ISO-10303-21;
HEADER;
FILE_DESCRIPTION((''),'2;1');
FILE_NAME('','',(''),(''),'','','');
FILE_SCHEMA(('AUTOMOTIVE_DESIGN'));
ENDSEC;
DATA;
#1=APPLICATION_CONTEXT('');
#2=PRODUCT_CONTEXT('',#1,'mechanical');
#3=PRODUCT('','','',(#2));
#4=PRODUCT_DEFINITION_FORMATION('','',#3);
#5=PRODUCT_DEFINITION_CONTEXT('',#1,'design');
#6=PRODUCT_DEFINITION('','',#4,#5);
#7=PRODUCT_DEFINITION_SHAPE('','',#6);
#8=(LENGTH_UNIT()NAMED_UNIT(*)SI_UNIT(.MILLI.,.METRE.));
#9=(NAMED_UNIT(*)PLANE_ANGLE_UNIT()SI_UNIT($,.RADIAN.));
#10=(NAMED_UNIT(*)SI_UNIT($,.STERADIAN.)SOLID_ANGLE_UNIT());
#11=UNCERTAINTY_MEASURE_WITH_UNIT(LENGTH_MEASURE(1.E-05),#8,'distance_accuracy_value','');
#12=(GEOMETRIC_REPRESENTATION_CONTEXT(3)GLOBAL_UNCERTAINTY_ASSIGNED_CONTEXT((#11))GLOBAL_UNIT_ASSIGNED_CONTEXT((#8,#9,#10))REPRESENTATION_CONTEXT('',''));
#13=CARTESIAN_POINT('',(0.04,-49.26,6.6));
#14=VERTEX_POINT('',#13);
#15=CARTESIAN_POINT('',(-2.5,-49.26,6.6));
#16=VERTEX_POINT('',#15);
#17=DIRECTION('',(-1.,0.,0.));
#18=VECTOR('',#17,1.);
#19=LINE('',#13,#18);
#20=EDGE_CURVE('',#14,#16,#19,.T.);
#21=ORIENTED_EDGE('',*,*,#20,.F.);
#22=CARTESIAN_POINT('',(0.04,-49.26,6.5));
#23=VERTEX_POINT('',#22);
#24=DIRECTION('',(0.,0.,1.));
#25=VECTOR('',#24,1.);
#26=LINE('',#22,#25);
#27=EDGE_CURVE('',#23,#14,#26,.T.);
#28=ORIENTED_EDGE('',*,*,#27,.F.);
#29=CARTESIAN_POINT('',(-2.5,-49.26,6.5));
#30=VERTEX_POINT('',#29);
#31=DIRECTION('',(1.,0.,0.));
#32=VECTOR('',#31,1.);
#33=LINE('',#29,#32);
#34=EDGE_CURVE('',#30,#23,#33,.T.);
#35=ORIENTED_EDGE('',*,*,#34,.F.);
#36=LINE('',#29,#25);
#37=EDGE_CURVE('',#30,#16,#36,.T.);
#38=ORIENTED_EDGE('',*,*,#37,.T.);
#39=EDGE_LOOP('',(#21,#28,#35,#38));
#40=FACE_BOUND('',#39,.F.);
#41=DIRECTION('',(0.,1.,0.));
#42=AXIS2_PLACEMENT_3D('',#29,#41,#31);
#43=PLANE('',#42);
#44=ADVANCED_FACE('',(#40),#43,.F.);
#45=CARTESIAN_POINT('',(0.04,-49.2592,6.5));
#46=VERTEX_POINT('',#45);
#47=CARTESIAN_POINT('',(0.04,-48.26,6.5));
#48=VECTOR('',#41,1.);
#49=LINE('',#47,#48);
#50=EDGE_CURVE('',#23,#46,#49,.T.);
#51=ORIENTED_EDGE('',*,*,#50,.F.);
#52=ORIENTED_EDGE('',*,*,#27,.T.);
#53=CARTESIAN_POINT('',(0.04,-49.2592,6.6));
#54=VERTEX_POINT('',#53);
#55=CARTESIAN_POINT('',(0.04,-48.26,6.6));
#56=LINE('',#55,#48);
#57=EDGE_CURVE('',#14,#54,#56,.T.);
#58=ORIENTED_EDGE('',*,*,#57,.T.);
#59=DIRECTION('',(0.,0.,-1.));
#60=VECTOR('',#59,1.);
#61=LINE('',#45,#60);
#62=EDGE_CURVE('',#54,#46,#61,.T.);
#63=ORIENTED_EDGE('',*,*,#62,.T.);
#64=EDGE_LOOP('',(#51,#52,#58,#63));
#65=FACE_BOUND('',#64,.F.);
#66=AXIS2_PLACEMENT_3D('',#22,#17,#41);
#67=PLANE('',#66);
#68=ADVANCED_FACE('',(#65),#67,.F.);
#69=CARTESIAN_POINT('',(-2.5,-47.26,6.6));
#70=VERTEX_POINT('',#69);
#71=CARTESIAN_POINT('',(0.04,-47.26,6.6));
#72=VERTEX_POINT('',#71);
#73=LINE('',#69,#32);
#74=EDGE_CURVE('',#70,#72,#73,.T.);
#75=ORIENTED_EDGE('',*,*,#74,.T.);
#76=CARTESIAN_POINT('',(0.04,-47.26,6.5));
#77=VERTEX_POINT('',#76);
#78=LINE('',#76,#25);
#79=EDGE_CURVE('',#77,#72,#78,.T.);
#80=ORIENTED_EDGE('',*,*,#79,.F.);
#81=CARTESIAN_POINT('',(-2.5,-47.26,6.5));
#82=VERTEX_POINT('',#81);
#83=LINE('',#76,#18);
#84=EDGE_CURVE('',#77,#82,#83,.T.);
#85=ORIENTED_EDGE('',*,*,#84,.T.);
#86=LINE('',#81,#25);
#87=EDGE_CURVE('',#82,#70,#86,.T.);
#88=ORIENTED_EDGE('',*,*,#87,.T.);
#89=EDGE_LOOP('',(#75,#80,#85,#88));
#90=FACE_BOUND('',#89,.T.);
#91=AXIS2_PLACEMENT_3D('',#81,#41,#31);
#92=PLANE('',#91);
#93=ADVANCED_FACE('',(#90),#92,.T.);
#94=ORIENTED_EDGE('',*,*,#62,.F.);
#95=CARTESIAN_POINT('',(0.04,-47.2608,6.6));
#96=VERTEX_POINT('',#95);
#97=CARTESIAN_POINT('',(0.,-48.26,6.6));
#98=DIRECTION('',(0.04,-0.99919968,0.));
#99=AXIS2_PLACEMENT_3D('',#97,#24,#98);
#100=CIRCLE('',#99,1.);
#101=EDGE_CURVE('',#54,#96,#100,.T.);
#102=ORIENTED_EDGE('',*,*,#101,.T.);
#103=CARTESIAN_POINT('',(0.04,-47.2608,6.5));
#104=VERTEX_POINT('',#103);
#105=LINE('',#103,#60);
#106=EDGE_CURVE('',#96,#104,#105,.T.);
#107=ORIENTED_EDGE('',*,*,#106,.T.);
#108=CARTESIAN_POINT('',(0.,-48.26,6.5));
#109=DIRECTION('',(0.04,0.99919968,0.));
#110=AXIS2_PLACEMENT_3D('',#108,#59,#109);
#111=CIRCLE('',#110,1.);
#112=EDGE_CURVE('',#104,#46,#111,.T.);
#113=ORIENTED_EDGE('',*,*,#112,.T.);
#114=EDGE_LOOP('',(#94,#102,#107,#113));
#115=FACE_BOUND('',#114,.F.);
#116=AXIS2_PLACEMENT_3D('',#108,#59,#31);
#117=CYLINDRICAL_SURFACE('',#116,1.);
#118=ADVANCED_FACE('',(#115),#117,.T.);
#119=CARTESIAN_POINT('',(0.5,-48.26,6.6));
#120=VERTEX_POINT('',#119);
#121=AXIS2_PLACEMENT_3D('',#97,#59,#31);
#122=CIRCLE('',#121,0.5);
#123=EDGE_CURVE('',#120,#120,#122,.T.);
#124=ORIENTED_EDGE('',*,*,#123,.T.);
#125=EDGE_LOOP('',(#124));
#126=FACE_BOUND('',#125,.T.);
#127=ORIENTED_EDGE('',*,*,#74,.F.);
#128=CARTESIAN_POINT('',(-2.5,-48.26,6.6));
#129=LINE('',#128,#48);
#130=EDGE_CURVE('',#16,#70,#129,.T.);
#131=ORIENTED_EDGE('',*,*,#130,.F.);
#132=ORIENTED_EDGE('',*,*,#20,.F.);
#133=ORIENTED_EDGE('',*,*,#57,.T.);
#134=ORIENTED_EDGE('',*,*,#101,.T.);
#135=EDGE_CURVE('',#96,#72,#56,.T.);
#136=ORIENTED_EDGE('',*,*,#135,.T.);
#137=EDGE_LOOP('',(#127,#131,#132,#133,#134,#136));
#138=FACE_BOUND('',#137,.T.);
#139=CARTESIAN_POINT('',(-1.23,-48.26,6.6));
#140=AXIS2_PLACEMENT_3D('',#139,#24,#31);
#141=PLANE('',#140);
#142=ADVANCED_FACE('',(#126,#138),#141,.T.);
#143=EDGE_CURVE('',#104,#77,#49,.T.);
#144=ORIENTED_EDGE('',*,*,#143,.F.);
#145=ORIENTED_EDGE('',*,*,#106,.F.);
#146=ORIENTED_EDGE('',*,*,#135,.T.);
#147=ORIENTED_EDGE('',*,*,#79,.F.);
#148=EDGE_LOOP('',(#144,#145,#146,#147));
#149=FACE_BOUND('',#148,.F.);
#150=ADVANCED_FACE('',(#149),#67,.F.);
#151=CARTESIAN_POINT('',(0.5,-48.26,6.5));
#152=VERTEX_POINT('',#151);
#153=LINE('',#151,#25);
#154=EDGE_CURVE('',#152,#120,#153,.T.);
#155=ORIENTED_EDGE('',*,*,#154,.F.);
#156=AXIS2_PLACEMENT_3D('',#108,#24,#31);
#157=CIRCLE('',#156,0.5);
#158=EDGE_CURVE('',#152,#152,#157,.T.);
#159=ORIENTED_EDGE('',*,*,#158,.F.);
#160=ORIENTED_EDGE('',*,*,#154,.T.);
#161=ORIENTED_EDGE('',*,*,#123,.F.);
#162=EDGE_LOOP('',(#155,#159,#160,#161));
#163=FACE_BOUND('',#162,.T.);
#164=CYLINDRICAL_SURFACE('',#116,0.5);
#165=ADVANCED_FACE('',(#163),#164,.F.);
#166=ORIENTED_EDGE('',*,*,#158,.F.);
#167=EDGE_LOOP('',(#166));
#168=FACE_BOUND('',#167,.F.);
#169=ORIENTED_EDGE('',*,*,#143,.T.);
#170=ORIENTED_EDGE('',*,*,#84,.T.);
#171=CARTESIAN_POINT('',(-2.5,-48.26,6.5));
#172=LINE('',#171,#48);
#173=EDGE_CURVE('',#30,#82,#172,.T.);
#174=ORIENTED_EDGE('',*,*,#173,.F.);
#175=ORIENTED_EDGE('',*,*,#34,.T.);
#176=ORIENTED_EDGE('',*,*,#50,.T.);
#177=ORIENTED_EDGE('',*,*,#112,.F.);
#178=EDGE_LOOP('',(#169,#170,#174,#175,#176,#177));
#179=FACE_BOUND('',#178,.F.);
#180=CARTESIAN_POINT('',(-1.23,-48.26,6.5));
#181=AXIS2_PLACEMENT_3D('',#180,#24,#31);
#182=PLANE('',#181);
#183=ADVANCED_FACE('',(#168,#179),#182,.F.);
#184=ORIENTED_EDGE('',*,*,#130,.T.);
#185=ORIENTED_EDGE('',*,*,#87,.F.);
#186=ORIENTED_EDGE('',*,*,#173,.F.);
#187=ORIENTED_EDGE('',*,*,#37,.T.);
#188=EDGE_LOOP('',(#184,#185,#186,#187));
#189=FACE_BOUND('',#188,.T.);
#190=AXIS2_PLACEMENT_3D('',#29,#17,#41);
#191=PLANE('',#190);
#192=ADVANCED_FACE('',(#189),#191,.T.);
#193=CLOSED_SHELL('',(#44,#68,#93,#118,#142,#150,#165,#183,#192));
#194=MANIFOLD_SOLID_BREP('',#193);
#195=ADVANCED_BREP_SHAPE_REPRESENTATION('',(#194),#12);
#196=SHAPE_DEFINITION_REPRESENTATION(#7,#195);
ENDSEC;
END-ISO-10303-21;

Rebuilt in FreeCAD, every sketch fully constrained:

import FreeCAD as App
import Part
import Sketcher


def add_polygon(sketch, points):
    """Adds a closed chain of lines whose ends are joined by coincident constraints."""
    first, n = sketch.GeometryCount, len(points)
    for a, b in zip(points, points[1:] + points[:1]):
        sketch.addGeometry(Part.LineSegment(App.Vector(*a, 0), App.Vector(*b, 0)), False)
    for i in range(n):
        sketch.addConstraint(Sketcher.Constraint("Coincident", first + i, 2, first + (i + 1) % n, 1))

doc = App.newDocument("Part")
body = doc.addObject("PartDesign::Body", "Body")

# Sketch on XY plane
sketch1 = body.newObject("Sketcher::SketchObject", "Sketch")
sketch1.AttachmentSupport = (doc.getObject("XY_Plane"), [""])
sketch1.MapMode = "FlatFace"
sketch1.AttachmentOffset = App.Placement(App.Vector(0, 0, 1), App.Rotation())
sketch1.addGeometry(Part.Circle(App.Vector(0, 0, 0), App.Vector(0, 0, 1), 0.5), False)
sketch1.addConstraint(Sketcher.Constraint("Coincident", 0, 3, -1, 1))
sketch1.addConstraint(Sketcher.Constraint("Diameter", 0, 1.0))
pad1 = body.newObject("PartDesign::Pad", "Pad")
pad1.Profile = sketch1
pad1.Length = 0.1
body2 = doc.addObject("PartDesign::Body", "Body001")

# Sketch on XY plane
sketch2 = body2.newObject("Sketcher::SketchObject", "Sketch001")
sketch2.AttachmentSupport = (doc.getObject("XY_Plane001"), [""])
sketch2.MapMode = "FlatFace"
sketch2.AttachmentOffset = App.Placement(App.Vector(0, 0, 1), App.Rotation())
add_polygon(sketch2, [(-2.5, 1), (-2.5, -1), (0, -1), (0, 1)])  # lines 0-3
sketch2.addConstraint(Sketcher.Constraint("Vertical", 0))
sketch2.addConstraint(Sketcher.Constraint("Horizontal", 1))
sketch2.addConstraint(Sketcher.Constraint("Vertical", 2))
sketch2.addConstraint(Sketcher.Constraint("Horizontal", 3))
sketch2.addConstraint(Sketcher.Constraint("DistanceY", 0, 2, 0, 1, 2.0))
sketch2.addConstraint(Sketcher.Constraint("DistanceY", 0, 2, -1, 1, 1.0))
sketch2.addConstraint(Sketcher.Constraint("DistanceX", 1, 1, 1, 2, 2.54))
sketch2.addConstraint(Sketcher.Constraint("DistanceX", 0, 2, -1, 1, 2.5))
pad2 = body2.newObject("PartDesign::Pad", "Pad001")
pad2.Profile = sketch2
pad2.Length = 0.1
doc.recompute()

boolean = body2.newObject("PartDesign::Boolean", "Boolean")
boolean.Type = "Cut"
boolean.addObjects([body])
body3 = doc.addObject("PartDesign::Body", "Body002")

# Sketch on XY plane
sketch3 = body3.newObject("Sketcher::SketchObject", "Sketch002")
sketch3.AttachmentSupport = (doc.getObject("XY_Plane002"), [""])
sketch3.MapMode = "FlatFace"
sketch3.AttachmentOffset = App.Placement(App.Vector(0, 0, 1), App.Rotation())
sketch3.addGeometry(Part.Circle(App.Vector(0, 0, 0), App.Vector(0, 0, 1), 0.5), False)
sketch3.addConstraint(Sketcher.Constraint("Coincident", 0, 3, -1, 1))
sketch3.addConstraint(Sketcher.Constraint("Diameter", 0, 1.0))
pad3 = body3.newObject("PartDesign::Pad", "Pad002")
pad3.Profile = sketch3
pad3.Length = 0.1
body4 = doc.addObject("PartDesign::Body", "Body003")

# Sketch on XY plane
sketch4 = body4.newObject("Sketcher::SketchObject", "Sketch003")
sketch4.AttachmentSupport = (doc.getObject("XY_Plane003"), [""])
sketch4.MapMode = "FlatFace"
sketch4.AttachmentOffset = App.Placement(App.Vector(0, 0, 1), App.Rotation())
sketch4.addGeometry(Part.Circle(App.Vector(0, 0, 0), App.Vector(0, 0, 1), 1), False)
sketch4.addConstraint(Sketcher.Constraint("Coincident", 0, 3, -1, 1))
sketch4.addConstraint(Sketcher.Constraint("Diameter", 0, 2.0))
pad4 = body4.newObject("PartDesign::Pad", "Pad003")
pad4.Profile = sketch4
pad4.Length = 0.1
doc.recompute()

boolean2 = body4.newObject("PartDesign::Boolean", "Boolean001")
boolean2.Type = "Cut"
boolean2.addObjects([body3])
doc.recompute()

boolean3 = body4.newObject("PartDesign::Boolean", "Boolean002")
boolean3.Type = "Fuse"
boolean3.addObjects([body2])
body5 = doc.addObject("PartDesign::Body", "Body004")
doc.recompute()

body4.Placement = App.Placement(App.Vector(0, -48.26, 5.5), App.Rotation(App.Vector(0, 0, 1), 0))
boolean4 = body5.newObject("PartDesign::Boolean", "Boolean003")
boolean4.Type = "Fuse"
boolean4.addObjects([body4])

doc.recompute()
